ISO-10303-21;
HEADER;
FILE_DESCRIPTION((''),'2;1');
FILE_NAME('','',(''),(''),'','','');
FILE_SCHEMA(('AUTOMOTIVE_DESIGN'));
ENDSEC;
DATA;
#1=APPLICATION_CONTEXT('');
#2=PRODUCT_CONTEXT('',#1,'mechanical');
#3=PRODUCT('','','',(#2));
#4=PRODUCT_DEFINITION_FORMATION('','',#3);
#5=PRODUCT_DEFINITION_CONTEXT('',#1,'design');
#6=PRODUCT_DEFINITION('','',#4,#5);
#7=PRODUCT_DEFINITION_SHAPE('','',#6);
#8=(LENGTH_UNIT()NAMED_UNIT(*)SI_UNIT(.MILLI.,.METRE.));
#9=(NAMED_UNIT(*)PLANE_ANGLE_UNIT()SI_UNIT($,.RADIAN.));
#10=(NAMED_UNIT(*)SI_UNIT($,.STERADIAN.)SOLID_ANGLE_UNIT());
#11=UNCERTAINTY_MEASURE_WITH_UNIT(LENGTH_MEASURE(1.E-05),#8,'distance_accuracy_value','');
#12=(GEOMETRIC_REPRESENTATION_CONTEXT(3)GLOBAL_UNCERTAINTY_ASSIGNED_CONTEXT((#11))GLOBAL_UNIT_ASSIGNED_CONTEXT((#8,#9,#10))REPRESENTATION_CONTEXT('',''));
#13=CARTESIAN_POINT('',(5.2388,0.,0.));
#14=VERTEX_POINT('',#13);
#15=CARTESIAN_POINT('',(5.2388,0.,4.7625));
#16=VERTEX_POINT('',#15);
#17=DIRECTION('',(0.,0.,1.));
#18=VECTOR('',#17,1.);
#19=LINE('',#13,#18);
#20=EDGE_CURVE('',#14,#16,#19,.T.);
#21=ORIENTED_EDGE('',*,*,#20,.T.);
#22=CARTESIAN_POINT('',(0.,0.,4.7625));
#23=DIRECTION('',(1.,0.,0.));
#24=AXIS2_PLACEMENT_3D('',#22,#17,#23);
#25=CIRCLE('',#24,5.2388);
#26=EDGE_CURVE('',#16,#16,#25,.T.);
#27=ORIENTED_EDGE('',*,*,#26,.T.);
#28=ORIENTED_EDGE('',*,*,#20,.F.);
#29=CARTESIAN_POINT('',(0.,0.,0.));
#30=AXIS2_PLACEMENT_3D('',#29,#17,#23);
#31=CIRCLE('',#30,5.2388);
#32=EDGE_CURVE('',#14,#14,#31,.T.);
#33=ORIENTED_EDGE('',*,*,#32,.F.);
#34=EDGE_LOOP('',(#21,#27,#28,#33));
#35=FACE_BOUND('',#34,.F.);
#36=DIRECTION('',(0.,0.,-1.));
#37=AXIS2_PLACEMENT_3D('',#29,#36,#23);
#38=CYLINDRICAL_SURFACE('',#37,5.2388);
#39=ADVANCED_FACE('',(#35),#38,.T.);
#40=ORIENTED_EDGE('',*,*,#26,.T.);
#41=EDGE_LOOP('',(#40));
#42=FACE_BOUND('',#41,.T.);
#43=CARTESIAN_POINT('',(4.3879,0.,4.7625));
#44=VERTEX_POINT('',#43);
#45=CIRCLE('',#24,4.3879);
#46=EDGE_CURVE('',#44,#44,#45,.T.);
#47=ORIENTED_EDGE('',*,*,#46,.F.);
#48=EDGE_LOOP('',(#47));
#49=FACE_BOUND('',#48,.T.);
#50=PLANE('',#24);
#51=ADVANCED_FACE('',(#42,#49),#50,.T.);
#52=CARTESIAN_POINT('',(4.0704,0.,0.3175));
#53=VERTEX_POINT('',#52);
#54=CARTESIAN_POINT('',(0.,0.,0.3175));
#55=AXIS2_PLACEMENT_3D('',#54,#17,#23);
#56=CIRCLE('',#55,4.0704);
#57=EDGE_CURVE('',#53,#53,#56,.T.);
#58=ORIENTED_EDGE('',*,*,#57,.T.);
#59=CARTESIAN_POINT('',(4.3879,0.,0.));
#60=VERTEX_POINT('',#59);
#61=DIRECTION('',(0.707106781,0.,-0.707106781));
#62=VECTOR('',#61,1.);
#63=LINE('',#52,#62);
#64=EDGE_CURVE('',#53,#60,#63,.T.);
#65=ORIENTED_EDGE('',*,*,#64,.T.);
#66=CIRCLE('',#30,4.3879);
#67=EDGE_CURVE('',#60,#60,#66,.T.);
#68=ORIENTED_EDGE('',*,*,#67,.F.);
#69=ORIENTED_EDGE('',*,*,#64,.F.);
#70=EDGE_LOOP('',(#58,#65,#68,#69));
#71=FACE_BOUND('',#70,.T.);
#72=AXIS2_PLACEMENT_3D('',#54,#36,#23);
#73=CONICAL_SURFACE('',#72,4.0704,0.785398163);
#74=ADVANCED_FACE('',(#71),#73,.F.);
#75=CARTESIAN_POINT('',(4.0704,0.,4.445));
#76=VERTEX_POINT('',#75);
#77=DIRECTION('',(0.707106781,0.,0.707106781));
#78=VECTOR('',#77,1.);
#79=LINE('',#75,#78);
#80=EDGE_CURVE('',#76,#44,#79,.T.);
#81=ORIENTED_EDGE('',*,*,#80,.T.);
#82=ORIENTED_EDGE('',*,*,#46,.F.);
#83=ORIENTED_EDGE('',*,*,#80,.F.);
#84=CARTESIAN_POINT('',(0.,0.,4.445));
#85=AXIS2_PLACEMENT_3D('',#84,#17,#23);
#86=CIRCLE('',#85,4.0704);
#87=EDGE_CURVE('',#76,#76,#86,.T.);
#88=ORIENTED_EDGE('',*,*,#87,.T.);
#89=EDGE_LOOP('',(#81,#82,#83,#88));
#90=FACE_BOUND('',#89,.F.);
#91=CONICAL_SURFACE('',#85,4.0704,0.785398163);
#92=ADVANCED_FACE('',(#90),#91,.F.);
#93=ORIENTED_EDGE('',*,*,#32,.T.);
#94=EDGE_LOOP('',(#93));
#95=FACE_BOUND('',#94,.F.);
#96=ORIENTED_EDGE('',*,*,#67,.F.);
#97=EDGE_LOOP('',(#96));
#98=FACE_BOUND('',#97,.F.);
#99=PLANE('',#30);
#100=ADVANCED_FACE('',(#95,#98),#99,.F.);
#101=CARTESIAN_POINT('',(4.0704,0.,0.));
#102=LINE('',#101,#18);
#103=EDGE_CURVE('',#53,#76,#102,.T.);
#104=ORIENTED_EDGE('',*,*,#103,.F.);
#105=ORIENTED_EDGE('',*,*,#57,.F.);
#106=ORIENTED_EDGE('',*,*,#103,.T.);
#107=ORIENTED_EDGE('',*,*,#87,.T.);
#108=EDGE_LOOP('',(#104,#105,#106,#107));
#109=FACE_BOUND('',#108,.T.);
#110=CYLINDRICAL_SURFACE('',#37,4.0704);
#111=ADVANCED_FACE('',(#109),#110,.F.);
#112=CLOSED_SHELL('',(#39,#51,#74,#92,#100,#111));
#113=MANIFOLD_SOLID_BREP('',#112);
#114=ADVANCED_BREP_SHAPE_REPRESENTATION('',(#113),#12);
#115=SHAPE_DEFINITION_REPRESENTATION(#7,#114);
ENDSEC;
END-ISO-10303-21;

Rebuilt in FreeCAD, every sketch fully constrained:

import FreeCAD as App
import Part
import Sketcher

V = App.Vector
Q = App.Units.Quantity


def edges_at(feature, points):
    """Names of the edges that pass closest to the given points."""
    edges = feature.Shape.Edges
    near = lambda p: min(range(len(edges)), key=lambda i: edges[i].distToShape(Part.Vertex(*p))[0])
    return sorted({f"Edge{near(p) + 1}" for p in points})

doc = App.newDocument("Part")
body = doc.addObject("PartDesign::Body", "Body")

# Sketch on XY plane
sketch1 = body.newObject("Sketcher::SketchObject", "Sketch")
sketch1.AttachmentSupport = (doc.getObject("XY_Plane"), [""])
sketch1.MapMode = "FlatFace"
sketch1.addGeometry(Part.Circle(V(0, 0, 0), V(0, 0, 1), 5.2), False)
sketch1.addGeometry(Part.Circle(V(0, 0, 0), V(0, 0, 1), 4.1), False)
sketch1.addConstraint(Sketcher.Constraint("Coincident", 0, 3, -1, 1))
sketch1.addConstraint(Sketcher.Constraint("Coincident", 1, 3, -1, 1))
sketch1.addConstraint(Sketcher.Constraint("Diameter", 1, Q("0.3205 in")))
sketch1.addConstraint(Sketcher.Constraint("Diameter", 0, Q("0.4125 in")))
pad1 = body.newObject("PartDesign::Pad", "Pad")
pad1.Profile = sketch1
pad1.Length = Q("0.1875 in")
doc.recompute()

chamfer = body.newObject("PartDesign::Chamfer", "Chamfer")
chamfer.Base = (pad1, edges_at(pad1, [(-4.07, 0, 4.763), (-4.07, 0, 0)]))
chamfer.Size = Q("0.0125 in")

doc.recompute()
